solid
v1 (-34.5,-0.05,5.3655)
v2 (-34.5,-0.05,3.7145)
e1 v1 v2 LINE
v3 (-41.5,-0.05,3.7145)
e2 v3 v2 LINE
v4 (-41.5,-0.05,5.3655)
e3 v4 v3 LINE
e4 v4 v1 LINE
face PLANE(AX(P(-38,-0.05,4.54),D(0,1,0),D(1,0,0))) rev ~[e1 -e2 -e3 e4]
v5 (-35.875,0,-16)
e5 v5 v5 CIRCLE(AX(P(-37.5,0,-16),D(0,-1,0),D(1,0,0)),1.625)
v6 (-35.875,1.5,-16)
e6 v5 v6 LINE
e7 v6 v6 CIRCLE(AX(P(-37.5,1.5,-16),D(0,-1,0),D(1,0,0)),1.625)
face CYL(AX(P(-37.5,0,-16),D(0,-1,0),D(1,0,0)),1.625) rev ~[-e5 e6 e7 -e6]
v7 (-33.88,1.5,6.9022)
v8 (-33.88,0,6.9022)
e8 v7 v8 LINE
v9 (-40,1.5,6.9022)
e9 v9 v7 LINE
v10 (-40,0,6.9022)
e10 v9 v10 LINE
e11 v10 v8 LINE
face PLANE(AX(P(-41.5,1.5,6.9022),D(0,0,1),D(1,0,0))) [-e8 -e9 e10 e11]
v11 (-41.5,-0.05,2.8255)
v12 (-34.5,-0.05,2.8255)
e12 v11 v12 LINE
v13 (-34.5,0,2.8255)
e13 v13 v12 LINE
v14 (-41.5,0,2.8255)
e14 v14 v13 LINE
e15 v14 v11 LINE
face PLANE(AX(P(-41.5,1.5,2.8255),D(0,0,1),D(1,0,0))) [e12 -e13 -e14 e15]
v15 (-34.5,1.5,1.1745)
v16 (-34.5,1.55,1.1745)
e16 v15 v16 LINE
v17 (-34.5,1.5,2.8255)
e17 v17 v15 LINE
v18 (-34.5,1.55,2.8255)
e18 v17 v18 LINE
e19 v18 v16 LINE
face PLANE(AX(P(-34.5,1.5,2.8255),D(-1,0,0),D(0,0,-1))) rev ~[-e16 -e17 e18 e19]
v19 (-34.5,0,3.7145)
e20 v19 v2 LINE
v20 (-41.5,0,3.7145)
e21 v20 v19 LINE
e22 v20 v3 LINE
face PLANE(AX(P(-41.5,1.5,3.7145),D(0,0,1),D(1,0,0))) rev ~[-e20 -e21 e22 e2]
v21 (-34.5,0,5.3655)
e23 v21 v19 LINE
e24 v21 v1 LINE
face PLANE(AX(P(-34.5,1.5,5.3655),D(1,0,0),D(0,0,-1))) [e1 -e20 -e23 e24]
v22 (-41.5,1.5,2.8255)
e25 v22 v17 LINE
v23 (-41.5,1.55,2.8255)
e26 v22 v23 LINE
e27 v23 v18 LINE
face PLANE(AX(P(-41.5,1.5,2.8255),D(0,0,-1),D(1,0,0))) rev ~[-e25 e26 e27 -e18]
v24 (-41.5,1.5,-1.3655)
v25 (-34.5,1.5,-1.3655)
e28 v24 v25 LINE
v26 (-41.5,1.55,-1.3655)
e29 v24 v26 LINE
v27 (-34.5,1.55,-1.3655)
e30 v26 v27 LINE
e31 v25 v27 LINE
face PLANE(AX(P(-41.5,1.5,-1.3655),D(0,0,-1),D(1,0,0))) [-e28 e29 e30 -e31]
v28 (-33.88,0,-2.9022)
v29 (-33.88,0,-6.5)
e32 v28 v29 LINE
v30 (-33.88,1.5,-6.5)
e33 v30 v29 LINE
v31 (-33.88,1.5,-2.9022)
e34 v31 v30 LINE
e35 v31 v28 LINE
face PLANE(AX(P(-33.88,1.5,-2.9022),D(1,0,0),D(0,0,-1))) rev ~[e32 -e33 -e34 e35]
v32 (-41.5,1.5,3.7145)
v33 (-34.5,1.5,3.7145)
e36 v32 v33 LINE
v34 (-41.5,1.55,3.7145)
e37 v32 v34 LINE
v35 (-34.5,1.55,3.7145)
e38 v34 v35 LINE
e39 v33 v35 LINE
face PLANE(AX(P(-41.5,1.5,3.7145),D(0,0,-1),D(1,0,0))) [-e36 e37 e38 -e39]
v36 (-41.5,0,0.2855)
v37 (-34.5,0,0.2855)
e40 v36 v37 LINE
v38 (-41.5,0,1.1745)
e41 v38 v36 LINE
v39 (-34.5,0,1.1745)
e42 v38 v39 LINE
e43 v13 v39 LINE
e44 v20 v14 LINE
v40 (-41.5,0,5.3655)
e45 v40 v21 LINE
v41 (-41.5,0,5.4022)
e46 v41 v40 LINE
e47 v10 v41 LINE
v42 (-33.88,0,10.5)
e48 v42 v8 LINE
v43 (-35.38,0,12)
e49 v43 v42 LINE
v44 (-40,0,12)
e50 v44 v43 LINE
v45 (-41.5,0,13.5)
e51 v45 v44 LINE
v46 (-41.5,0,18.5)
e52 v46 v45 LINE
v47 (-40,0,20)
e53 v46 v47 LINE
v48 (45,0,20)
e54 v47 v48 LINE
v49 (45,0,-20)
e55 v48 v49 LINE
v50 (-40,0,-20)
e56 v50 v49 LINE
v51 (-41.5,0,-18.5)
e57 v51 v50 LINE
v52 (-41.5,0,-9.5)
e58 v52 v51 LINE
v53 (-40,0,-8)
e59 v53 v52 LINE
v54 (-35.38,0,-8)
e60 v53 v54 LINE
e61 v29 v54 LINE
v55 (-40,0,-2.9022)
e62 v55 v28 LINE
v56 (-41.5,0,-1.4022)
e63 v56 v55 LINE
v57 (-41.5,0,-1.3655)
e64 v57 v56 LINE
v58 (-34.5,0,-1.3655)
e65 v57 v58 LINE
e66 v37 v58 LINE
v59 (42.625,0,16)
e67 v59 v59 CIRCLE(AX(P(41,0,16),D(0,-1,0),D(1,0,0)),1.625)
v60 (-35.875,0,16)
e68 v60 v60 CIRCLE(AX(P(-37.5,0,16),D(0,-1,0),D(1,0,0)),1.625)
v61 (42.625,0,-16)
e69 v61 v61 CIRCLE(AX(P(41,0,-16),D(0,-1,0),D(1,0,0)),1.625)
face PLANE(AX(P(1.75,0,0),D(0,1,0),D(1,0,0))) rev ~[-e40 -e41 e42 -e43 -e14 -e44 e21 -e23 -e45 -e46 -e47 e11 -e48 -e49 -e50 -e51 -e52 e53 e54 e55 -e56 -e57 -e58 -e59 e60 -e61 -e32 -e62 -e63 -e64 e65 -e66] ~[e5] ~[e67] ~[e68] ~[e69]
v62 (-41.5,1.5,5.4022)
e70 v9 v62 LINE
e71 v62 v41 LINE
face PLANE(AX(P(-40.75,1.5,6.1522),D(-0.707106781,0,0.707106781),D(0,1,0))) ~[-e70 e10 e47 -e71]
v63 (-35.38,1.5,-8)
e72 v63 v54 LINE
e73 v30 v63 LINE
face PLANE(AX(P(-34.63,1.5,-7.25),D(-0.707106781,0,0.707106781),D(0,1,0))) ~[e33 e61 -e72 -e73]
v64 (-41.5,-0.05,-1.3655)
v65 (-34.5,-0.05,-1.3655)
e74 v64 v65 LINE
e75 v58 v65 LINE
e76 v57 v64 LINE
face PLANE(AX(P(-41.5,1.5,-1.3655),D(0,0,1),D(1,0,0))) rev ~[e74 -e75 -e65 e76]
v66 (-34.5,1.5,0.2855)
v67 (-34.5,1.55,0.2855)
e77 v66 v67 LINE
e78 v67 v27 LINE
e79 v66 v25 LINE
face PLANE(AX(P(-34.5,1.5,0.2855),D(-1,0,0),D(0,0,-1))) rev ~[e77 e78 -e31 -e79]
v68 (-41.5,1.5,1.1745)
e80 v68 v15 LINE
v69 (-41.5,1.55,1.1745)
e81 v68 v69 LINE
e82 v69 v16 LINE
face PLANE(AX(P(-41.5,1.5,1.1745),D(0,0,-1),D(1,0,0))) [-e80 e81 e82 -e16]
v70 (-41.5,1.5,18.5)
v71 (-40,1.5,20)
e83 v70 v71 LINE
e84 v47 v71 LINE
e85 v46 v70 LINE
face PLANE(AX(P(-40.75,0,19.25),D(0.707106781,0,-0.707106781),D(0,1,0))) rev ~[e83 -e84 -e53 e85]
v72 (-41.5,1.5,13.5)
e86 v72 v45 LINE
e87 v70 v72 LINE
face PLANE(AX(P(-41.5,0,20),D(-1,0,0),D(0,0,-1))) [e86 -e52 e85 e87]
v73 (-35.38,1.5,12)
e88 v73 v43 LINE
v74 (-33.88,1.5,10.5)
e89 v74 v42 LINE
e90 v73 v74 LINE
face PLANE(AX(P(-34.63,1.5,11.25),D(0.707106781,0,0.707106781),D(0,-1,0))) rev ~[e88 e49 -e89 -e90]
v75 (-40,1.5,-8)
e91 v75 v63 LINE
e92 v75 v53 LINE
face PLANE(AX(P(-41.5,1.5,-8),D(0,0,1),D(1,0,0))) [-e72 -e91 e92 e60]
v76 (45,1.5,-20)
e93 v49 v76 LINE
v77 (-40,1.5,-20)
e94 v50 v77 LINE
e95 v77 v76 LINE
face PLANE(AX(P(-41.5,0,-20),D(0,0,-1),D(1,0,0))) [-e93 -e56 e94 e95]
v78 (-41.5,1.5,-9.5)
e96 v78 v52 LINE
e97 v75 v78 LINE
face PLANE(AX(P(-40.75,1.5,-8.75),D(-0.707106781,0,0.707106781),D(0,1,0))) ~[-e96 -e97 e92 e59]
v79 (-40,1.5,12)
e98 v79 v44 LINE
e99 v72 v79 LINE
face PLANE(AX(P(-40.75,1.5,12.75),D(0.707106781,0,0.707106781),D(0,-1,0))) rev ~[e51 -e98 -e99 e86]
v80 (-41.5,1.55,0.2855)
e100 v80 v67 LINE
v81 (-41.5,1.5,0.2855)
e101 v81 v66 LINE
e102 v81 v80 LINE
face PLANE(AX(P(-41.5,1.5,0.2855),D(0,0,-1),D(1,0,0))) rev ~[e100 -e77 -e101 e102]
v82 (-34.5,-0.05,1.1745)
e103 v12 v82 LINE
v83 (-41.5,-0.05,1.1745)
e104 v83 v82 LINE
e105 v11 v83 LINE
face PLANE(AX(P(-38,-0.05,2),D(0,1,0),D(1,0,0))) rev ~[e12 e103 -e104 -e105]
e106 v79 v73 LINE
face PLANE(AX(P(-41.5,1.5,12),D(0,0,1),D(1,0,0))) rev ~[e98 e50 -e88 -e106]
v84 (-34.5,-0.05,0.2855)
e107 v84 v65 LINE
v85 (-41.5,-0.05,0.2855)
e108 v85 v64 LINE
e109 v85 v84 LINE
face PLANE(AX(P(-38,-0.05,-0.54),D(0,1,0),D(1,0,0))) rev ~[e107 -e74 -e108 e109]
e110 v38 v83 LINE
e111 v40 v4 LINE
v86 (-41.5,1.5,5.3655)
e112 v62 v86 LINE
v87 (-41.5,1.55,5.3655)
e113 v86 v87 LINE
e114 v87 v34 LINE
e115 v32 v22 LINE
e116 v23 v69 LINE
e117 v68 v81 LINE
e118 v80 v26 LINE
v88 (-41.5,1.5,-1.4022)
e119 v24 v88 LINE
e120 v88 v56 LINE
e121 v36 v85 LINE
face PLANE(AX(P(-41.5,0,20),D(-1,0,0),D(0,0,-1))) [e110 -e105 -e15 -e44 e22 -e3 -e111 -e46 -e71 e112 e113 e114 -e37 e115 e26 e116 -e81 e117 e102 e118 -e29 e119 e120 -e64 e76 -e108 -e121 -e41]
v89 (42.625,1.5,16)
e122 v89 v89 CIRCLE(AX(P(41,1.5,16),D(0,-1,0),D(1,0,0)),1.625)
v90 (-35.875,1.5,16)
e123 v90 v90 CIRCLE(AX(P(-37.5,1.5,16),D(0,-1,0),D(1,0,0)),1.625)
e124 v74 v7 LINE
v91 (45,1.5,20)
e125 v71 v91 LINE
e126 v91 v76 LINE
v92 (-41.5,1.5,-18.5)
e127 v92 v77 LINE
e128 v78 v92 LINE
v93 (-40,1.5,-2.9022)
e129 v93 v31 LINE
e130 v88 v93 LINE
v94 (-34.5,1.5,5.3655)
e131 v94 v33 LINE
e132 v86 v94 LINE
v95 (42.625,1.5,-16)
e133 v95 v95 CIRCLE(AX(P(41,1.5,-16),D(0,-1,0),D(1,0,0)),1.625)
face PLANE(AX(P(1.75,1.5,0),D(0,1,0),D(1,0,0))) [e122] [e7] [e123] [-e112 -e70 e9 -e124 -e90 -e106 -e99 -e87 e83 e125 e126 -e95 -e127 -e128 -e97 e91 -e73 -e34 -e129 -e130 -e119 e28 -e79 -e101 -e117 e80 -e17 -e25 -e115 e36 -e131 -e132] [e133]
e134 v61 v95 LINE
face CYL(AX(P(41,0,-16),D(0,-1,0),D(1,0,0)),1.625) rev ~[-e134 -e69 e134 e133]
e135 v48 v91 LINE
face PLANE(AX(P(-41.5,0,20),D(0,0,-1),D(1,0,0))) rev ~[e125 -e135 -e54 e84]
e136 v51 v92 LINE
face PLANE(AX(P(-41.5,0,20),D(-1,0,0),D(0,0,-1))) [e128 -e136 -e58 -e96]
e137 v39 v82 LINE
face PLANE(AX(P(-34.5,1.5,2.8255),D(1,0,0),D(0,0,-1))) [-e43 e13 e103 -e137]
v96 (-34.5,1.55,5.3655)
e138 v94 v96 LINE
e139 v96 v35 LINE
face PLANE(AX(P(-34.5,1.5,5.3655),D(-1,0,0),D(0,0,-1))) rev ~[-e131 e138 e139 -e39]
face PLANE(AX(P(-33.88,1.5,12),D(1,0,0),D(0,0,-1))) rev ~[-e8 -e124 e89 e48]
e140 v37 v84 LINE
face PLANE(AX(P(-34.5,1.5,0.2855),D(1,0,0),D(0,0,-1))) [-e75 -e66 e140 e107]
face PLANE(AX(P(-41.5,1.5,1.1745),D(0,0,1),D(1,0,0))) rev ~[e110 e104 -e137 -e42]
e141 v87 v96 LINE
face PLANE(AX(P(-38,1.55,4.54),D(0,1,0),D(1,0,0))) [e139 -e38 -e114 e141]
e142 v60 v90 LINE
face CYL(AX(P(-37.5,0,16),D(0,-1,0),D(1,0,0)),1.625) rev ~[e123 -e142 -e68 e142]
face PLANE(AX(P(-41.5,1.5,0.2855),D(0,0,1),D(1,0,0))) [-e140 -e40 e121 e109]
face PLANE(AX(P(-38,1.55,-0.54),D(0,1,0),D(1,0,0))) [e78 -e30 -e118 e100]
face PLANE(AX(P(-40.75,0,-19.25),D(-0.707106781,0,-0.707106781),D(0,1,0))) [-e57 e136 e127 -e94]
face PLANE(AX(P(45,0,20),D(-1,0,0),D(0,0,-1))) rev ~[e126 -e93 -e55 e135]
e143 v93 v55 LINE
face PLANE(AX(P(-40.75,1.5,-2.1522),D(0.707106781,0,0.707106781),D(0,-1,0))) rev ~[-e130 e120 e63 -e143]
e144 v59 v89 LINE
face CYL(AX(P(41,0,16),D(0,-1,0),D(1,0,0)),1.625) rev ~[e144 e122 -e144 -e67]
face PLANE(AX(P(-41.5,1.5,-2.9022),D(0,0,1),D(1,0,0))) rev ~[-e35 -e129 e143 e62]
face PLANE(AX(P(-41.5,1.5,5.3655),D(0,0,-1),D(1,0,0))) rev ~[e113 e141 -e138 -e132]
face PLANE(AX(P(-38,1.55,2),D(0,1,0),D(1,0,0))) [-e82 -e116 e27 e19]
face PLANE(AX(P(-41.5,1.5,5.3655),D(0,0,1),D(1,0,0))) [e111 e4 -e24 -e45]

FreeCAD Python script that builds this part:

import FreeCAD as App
import Part
import Sketcher
Q = App.Units.Quantity


def edges_at(feature, points):
    """Names of the edges that pass closest to the given points."""
    edges = feature.Shape.Edges
    near = lambda p: min(range(len(edges)), key=lambda i: edges[i].distToShape(Part.Vertex(*p))[0])
    return sorted({f"Edge{near(p) + 1}" for p in points})

doc = App.newDocument("Part")
body = doc.addObject("PartDesign::Body", "Body")

# Sketch on XZ plane
sketch1 = body.newObject("Sketcher::SketchObject", "Sketch")
sketch1.AttachmentSupport = (doc.getObject("XZ_Plane"), [""])
sketch1.MapMode = "FlatFace"
sketch1.addGeometry(Part.LineSegment(App.Vector(-41.5, -20, 0), App.Vector(-41.5, 20, 0)), False)
sketch1.addGeometry(Part.LineSegment(App.Vector(-41.5, 20, 0), App.Vector(45, 20, 0)), False)
sketch1.addGeometry(Part.LineSegment(App.Vector(45, 20, 0), App.Vector(45, -20, 0)), False)
sketch1.addGeometry(Part.LineSegment(App.Vector(45, -20, 0), App.Vector(-41.5, -20, 0)), False)
sketch1.addConstraint(Sketcher.Constraint("Coincident", 0, 2, 1, 1))
sketch1.addConstraint(Sketcher.Constraint("Coincident", 1, 2, 2, 1))
sketch1.addConstraint(Sketcher.Constraint("Coincident", 2, 2, 3, 1))
sketch1.addConstraint(Sketcher.Constraint("Coincident", 3, 2, 0, 1))
sketch1.addConstraint(Sketcher.Constraint("Vertical", 0))
sketch1.addConstraint(Sketcher.Constraint("Horizontal", 1))
sketch1.addConstraint(Sketcher.Constraint("Vertical", 2))
sketch1.addConstraint(Sketcher.Constraint("Horizontal", 3))
sketch1.addConstraint(Sketcher.Constraint("DistanceY", 0, 1, 0, 2, Q("40 mm")))
sketch1.addConstraint(Sketcher.Constraint("DistanceX", 1, 1, 1, 2, Q("86.5 mm")))
sketch1.addConstraint(Sketcher.Constraint("DistanceY", -1, 1, 0, 2, Q("20 mm")))
sketch1.addConstraint(Sketcher.Constraint("DistanceX", -1, 1, 1, 2, Q("45 mm")))
pad1 = body.newObject("PartDesign::Pad", "Pad")
pad1.Profile = sketch1
pad1.Length = 1.5
pad1.Reversed = True

# Sketch on XZ plane
sketch2 = body.newObject("Sketcher::SketchObject", "Sketch001")
sketch2.AttachmentSupport = (doc.getObject("XZ_Plane"), [""])
sketch2.MapMode = "FlatFace"
sketch2.AttachmentOffset = App.Placement(App.Vector(0, 0, -1.5), App.Rotation())
sketch2.addGeometry(Part.LineSegment(App.Vector(-41.5, -8, 0), App.Vector(-41.5, -2.9022, 0)), False)
sketch2.addGeometry(Part.LineSegment(App.Vector(-41.5, -2.9022, 0), App.Vector(-33.88, -2.9022, 0)), False)
sketch2.addGeometry(Part.LineSegment(App.Vector(-33.88, -2.9022, 0), App.Vector(-33.88, -8, 0)), False)
sketch2.addGeometry(Part.LineSegment(App.Vector(-33.88, -8, 0), App.Vector(-41.5, -8, 0)), False)
sketch2.addGeometry(Part.LineSegment(App.Vector(-41.5, 6.9022, 0), App.Vector(-41.5, 12, 0)), False)
sketch2.addGeometry(Part.LineSegment(App.Vector(-41.5, 12, 0), App.Vector(-33.88, 12, 0)), False)
sketch2.addGeometry(Part.LineSegment(App.Vector(-33.88, 12, 0), App.Vector(-33.88, 6.9022, 0)), False)
sketch2.addGeometry(Part.LineSegment(App.Vector(-33.88, 6.9022, 0), App.Vector(-41.5, 6.9022, 0)), False)
sketch2.addConstraint(Sketcher.Constraint("Coincident", 0, 2, 1, 1))
sketch2.addConstraint(Sketcher.Constraint("Coincident", 1, 2, 2, 1))
sketch2.addConstraint(Sketcher.Constraint("Coincident", 2, 2, 3, 1))
sketch2.addConstraint(Sketcher.Constraint("Coincident", 3, 2, 0, 1))
sketch2.addConstraint(Sketcher.Constraint("Coincident", 4, 2, 5, 1))
sketch2.addConstraint(Sketcher.Constraint("Coincident", 5, 2, 6, 1))
sketch2.addConstraint(Sketcher.Constraint("Coincident", 6, 2, 7, 1))
sketch2.addConstraint(Sketcher.Constraint("Coincident", 7, 2, 4, 1))
sketch2.addConstraint(Sketcher.Constraint("Vertical", 0))
sketch2.addConstraint(Sketcher.Constraint("Horizontal", 1))
sketch2.addConstraint(Sketcher.Constraint("Vertical", 2))
sketch2.addConstraint(Sketcher.Constraint("Horizontal", 3))
sketch2.addConstraint(Sketcher.Constraint("Vertical", 4))
sketch2.addConstraint(Sketcher.Constraint("Horizontal", 5))
sketch2.addConstraint(Sketcher.Constraint("Vertical", 6))
sketch2.addConstraint(Sketcher.Constraint("Horizontal", 7))
sketch2.addConstraint(Sketcher.Constraint("Vertical", 3, 2, 4, 2))
sketch2.addConstraint(Sketcher.Constraint("Vertical", 2, 2, 5, 2))
sketch2.addConstraint(Sketcher.Constraint("Equal", 2, 4))
sketch2.addConstraint(Sketcher.Constraint("DistanceY", 2, 2, -1, 1, Q("8 mm")))
sketch2.addConstraint(Sketcher.Constraint("DistanceY", -1, 1, 4, 2, Q("12 mm")))
sketch2.addConstraint(Sketcher.Constraint("DistanceX", 1, 1, 1, 2, Q("7.62 mm")))
sketch2.addConstraint(Sketcher.Constraint("DistanceX", 0, 2, -1, 1, Q("41.5 mm")))
sketch2.addConstraint(Sketcher.Constraint("DistanceY", 0, 1, 0, 2, Q("5.0978 mm")))
pocket1 = body.newObject("PartDesign::Pocket", "Pocket")
pocket1.Profile = sketch2
pocket1.Type = "ThroughAll"
pocket1.Reversed = True
doc.recompute()

chamfer = body.newObject("PartDesign::Chamfer", "Chamfer")
chamfer.Base = (pocket1, edges_at(pocket1, [
    (-41.5, 0.75, -2.902),
    (-41.5, 0.75, -8),
    (-33.88, 0.75, -8),
    (-41.5, 0.75, 12),
    (-41.5, 0.75, 6.902),
    (-33.88, 0.75, 12),
    (-41.5, 0.75, -20),
    (-41.5, 0.75, 20),
]))
chamfer.Size = 1.5

# Sketch on XZ plane
sketch3 = body.newObject("Sketcher::SketchObject", "Sketch002")
sketch3.AttachmentSupport = (doc.getObject("XZ_Plane"), [""])
sketch3.MapMode = "FlatFace"
sketch3.addGeometry(Part.Circle(App.Vector(-37.5, 16, 0), App.Vector(0, 0, 1), 1.625), False)
sketch3.addGeometry(Part.Circle(App.Vector(41, 16, 0), App.Vector(0, 0, 1), 1.625), False)
sketch3.addGeometry(Part.Circle(App.Vector(41, -16, 0), App.Vector(0, 0, 1), 1.625), False)
sketch3.addGeometry(Part.Circle(App.Vector(-37.5, -16, 0), App.Vector(0, 0, 1), 1.625), False)
sketch3.addConstraint(Sketcher.Constraint("Equal", 0, 1))
sketch3.addConstraint(Sketcher.Constraint("Equal", 1, 2))
sketch3.addConstraint(Sketcher.Constraint("Equal", 2, 3))
sketch3.addConstraint(Sketcher.Constraint("Symmetric", 1, 3, 2, 3, -1))
sketch3.addConstraint(Sketcher.Constraint("Symmetric", 0, 3, 3, 3, -1))
sketch3.addConstraint(Sketcher.Constraint("Horizontal", 0, 3, 1, 3))
sketch3.addConstraint(Sketcher.Constraint("Diameter", 0, Q("3.25 mm")))
sketch3.addConstraint(Sketcher.Constraint("DistanceY", -1, 1, 0, 3, Q("16 mm")))
sketch3.addConstraint(Sketcher.Constraint("DistanceX", -1, 1, 1, 3, Q("41 mm")))
sketch3.addConstraint(Sketcher.Constraint("DistanceX", 0, 3, -1, 1, Q("37.5 mm")))
pocket2 = body.newObject("PartDesign::Pocket", "Pocket001")
pocket2.Profile = sketch3
pocket2.Type = "ThroughAll"

# Sketch on XZ plane
sketch4 = body.newObject("Sketcher::SketchObject", "Sketch003")
sketch4.AttachmentSupport = (doc.getObject("XZ_Plane"), [""])
sketch4.MapMode = "FlatFace"
sketch4.AttachmentOffset = App.Placement(App.Vector(0, 0, -1.5), App.Rotation())
sketch4.addGeometry(Part.LineSegment(App.Vector(-41.5, -1.3655, 0), App.Vector(-41.5, 0.2855, 0)), False)
sketch4.addGeometry(Part.LineSegment(App.Vector(-41.5, 0.2855, 0), App.Vector(-34.5, 0.2855, 0)), False)
sketch4.addGeometry(Part.LineSegment(App.Vector(-34.5, 0.2855, 0), App.Vector(-34.5, -1.3655, 0)), False)
sketch4.addGeometry(Part.LineSegment(App.Vector(-34.5, -1.3655, 0), App.Vector(-41.5, -1.3655, 0)), False)
sketch4.addGeometry(Part.LineSegment(App.Vector(-41.5, 1.1745, 0), App.Vector(-41.5, 2.8255, 0)), False)
sketch4.addGeometry(Part.LineSegment(App.Vector(-41.5, 2.8255, 0), App.Vector(-34.5, 2.8255, 0)), False)
sketch4.addGeometry(Part.LineSegment(App.Vector(-34.5, 2.8255, 0), App.Vector(-34.5, 1.1745, 0)), False)
sketch4.addGeometry(Part.LineSegment(App.Vector(-34.5, 1.1745, 0), App.Vector(-41.5, 1.1745, 0)), False)
sketch4.addGeometry(Part.LineSegment(App.Vector(-41.5, 3.7145, 0), App.Vector(-41.5, 5.3655, 0)), False)
sketch4.addGeometry(Part.LineSegment(App.Vector(-41.5, 5.3655, 0), App.Vector(-34.5, 5.3655, 0)), False)
sketch4.addGeometry(Part.LineSegment(App.Vector(-34.5, 5.3655, 0), App.Vector(-34.5, 3.7145, 0)), False)
sketch4.addGeometry(Part.LineSegment(App.Vector(-34.5, 3.7145, 0), App.Vector(-41.5, 3.7145, 0)), False)
sketch4.addConstraint(Sketcher.Constraint("Coincident", 0, 2, 1, 1))
sketch4.addConstraint(Sketcher.Constraint("Coincident", 1, 2, 2, 1))
sketch4.addConstraint(Sketcher.Constraint("Coincident", 2, 2, 3, 1))
sketch4.addConstraint(Sketcher.Constraint("Coincident", 3, 2, 0, 1))
sketch4.addConstraint(Sketcher.Constraint("Coincident", 4, 2, 5, 1))
sketch4.addConstraint(Sketcher.Constraint("Coincident", 5, 2, 6, 1))
sketch4.addConstraint(Sketcher.Constraint("Coincident", 6, 2, 7, 1))
sketch4.addConstraint(Sketcher.Constraint("Coincident", 7, 2, 4, 1))
sketch4.addConstraint(Sketcher.Constraint("Coincident", 8, 2, 9, 1))
sketch4.addConstraint(Sketcher.Constraint("Coincident", 9, 2, 10, 1))
sketch4.addConstraint(Sketcher.Constraint("Coincident", 10, 2, 11, 1))
sketch4.addConstraint(Sketcher.Constraint("Coincident", 11, 2, 8, 1))
sketch4.addConstraint(Sketcher.Constraint("Vertical", 0))
sketch4.addConstraint(Sketcher.Constraint("Horizontal", 1))
sketch4.addConstraint(Sketcher.Constraint("Vertical", 2))
sketch4.addConstraint(Sketcher.Constraint("Horizontal", 3))
sketch4.addConstraint(Sketcher.Constraint("Vertical", 4))
sketch4.addConstraint(Sketcher.Constraint("Horizontal", 5))
sketch4.addConstraint(Sketcher.Constraint("Vertical", 6))
sketch4.addConstraint(Sketcher.Constraint("Horizontal", 7))
sketch4.addConstraint(Sketcher.Constraint("Vertical", 8))
sketch4.addConstraint(Sketcher.Constraint("Horizontal", 9))
sketch4.addConstraint(Sketcher.Constraint("Vertical", 10))
sketch4.addConstraint(Sketcher.Constraint("Horizontal", 11))
sketch4.addConstraint(Sketcher.Constraint("Vertical", 3, 2, 4, 2))
sketch4.addConstraint(Sketcher.Constraint("Vertical", 2, 2, 5, 2))
sketch4.addConstraint(Sketcher.Constraint("Vertical", 7, 2, 8, 2))
sketch4.addConstraint(Sketcher.Constraint("Vertical", 6, 2, 9, 2))
sketch4.addConstraint(Sketcher.Constraint("Equal", 2, 4))
sketch4.addConstraint(Sketcher.Constraint("Equal", 6, 8))
sketch4.addConstraint(Sketcher.Constraint("DistanceX", 1, 1, 1, 2, Q("7 mm")))
sketch4.addConstraint(Sketcher.Constraint("DistanceX", 0, 2, -1, 1, Q("41.5 mm")))
sketch4.addConstraint(Sketcher.Constraint("DistanceY", 0, 1, 0, 2, Q("1.651 mm")))
sketch4.addConstraint(Sketcher.Constraint("DistanceY", 0, 2, 4, 2, Q("2.54 mm")))
sketch4.addConstraint(Sketcher.Constraint("DistanceY", 4, 2, 8, 2, Q("2.54 mm")))
sketch4.addConstraint(Sketcher.Constraint("DistanceY", -1, 1, 0, 2, Q("0.2855 mm")))
pad2 = body.newObject("PartDesign::Pad", "Pad001")
pad2.Profile = sketch4
pad2.Type = "TwoLengths"
pad2.Length = 0.05
pad2.Length2 = 1.55
pad2.Reversed = True

doc.recompute()
